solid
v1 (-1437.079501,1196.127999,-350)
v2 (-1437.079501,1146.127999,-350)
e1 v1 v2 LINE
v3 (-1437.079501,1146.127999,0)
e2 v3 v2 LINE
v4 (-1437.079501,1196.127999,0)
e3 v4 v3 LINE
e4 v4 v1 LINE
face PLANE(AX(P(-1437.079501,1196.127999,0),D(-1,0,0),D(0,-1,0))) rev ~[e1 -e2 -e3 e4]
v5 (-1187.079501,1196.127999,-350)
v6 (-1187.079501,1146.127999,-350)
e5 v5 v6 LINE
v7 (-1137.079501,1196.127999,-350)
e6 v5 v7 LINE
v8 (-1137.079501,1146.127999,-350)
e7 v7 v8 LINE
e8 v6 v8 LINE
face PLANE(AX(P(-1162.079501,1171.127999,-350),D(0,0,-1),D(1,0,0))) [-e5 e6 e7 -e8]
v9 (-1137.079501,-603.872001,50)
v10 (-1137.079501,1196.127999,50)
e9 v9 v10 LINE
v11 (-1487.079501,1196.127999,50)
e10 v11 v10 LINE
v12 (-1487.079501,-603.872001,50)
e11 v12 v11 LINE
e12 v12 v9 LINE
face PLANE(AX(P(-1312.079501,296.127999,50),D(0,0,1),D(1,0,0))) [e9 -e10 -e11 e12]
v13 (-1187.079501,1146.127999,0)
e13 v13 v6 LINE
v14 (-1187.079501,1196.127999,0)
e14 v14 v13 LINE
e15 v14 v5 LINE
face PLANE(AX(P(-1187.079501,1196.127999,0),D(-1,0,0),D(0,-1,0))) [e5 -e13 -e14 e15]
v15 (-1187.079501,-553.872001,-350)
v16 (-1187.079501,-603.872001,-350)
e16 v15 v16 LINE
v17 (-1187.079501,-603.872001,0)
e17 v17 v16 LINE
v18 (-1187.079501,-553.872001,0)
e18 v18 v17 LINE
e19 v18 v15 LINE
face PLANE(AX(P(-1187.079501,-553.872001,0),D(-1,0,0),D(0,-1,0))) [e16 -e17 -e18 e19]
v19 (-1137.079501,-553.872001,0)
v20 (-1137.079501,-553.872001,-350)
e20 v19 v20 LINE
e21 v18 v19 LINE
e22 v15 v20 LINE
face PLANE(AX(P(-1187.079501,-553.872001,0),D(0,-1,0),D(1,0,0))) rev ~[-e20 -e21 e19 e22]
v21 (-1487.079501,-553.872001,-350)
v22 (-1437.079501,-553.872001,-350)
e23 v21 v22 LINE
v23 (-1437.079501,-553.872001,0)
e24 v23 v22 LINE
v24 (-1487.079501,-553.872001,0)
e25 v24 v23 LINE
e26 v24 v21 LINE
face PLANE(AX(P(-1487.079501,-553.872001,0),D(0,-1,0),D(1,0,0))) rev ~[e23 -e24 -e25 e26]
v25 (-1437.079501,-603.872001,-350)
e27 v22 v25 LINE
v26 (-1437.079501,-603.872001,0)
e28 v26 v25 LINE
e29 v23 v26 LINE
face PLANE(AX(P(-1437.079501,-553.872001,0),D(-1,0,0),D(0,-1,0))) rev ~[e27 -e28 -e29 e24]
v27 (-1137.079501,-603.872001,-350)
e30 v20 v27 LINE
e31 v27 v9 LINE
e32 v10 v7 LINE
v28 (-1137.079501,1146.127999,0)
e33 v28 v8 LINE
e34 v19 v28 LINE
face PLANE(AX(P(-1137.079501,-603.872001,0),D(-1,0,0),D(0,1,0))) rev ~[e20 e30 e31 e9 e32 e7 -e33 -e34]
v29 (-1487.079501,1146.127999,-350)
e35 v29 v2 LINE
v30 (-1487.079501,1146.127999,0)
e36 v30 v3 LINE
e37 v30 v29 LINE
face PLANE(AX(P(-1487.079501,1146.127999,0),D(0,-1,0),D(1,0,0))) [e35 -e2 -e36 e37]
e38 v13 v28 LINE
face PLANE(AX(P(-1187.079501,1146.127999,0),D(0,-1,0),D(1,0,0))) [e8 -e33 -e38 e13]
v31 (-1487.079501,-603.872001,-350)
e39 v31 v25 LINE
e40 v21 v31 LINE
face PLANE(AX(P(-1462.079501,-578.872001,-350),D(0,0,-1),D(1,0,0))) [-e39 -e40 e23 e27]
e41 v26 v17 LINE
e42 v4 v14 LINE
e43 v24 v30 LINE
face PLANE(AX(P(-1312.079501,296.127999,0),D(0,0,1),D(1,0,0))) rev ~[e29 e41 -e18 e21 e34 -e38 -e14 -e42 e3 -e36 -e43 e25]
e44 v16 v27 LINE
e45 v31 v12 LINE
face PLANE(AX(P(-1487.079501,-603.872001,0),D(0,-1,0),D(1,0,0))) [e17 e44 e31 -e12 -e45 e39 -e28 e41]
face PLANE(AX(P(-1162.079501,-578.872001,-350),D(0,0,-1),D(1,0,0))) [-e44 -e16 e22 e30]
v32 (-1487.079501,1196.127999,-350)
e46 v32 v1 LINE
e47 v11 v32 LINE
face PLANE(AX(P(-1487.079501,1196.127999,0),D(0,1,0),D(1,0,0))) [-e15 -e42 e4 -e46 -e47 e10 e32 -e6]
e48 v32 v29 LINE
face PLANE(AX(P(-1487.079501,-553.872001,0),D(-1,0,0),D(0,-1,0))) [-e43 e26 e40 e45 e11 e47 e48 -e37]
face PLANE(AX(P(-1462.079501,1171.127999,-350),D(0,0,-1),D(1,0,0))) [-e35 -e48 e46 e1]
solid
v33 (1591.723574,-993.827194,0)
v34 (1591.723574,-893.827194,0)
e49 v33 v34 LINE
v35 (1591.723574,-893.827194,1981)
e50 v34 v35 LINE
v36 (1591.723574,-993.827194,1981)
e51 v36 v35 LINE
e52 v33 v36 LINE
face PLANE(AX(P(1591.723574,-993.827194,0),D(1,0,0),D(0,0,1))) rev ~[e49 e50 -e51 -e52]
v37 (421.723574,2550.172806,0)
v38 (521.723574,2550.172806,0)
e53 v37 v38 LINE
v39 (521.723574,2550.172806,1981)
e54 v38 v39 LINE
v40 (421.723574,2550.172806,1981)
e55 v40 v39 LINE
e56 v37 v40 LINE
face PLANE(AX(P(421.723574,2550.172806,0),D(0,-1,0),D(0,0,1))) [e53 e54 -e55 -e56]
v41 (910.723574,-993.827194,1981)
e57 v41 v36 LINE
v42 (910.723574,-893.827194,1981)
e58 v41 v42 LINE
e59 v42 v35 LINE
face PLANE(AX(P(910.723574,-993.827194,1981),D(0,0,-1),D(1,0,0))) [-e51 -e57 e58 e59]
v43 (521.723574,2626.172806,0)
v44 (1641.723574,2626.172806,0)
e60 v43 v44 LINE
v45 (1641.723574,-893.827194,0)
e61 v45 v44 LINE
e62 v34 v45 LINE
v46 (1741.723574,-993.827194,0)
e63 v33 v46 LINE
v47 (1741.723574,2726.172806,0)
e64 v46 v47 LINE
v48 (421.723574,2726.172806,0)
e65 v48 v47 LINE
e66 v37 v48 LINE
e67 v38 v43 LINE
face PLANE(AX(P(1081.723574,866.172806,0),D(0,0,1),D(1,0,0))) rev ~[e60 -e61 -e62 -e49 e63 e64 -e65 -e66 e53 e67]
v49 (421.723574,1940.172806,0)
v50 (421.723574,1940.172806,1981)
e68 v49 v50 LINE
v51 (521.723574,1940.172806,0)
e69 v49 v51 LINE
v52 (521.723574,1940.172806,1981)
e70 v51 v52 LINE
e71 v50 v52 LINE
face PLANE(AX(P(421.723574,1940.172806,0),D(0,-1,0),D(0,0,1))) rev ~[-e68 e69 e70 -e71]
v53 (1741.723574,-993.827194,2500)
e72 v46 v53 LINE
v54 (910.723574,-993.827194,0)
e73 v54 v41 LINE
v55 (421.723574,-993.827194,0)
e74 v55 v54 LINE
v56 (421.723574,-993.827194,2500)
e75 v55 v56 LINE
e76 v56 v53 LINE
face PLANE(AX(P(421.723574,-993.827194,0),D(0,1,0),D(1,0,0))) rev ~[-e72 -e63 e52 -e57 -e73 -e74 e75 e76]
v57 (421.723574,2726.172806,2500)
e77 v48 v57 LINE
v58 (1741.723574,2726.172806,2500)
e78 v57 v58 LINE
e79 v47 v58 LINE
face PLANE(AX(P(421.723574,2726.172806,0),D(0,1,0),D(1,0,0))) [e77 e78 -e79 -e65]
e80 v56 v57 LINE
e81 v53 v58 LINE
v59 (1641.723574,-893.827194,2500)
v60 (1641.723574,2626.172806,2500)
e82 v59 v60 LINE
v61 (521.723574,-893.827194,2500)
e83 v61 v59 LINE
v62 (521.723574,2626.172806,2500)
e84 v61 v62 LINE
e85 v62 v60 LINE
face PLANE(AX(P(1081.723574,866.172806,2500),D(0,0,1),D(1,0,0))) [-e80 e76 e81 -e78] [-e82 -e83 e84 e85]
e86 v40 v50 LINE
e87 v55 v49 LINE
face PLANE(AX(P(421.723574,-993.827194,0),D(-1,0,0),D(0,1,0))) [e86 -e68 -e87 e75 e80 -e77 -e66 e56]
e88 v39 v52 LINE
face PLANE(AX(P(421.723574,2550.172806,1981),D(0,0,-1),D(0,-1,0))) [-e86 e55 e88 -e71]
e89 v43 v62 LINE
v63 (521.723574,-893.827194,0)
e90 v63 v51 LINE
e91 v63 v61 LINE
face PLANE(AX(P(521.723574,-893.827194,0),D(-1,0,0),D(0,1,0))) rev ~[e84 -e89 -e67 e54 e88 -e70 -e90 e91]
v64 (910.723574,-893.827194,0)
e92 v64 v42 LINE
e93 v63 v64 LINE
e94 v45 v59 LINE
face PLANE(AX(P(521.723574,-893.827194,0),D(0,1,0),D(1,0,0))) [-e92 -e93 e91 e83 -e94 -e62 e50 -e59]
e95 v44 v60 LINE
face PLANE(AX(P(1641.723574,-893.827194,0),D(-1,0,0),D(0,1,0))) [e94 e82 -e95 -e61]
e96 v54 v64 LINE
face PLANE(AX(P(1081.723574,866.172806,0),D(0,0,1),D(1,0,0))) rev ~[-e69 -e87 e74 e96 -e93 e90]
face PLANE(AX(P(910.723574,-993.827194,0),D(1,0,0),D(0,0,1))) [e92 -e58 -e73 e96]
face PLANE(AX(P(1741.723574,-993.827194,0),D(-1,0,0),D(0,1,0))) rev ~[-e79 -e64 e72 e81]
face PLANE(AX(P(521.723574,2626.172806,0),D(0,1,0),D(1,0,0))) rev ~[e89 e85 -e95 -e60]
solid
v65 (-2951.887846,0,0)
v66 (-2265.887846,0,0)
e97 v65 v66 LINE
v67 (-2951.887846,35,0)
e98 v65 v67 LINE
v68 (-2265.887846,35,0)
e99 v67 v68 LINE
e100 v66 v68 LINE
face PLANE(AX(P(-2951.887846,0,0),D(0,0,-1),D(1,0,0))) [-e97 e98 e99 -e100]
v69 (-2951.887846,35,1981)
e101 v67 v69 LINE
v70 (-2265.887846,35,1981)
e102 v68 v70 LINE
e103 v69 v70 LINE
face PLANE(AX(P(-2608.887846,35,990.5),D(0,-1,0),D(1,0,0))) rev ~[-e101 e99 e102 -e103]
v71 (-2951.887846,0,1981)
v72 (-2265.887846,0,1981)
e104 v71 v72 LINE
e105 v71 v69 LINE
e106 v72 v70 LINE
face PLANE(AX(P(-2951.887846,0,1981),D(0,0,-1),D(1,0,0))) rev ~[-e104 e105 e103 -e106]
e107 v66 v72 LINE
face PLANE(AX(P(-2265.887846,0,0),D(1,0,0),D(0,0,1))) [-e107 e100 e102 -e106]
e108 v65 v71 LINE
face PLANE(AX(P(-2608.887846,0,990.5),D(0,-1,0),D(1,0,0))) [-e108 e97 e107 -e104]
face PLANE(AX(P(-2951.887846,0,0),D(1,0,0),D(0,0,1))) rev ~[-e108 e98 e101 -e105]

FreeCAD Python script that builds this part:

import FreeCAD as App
import Part
import Sketcher
from FreeCAD import Vector
Q = App.Units.Quantity

doc = App.newDocument("Part")
body = doc.addObject("PartDesign::Body", "Body")

sketch1 = doc.addObject("Sketcher::SketchObject", "Sketch")
body.addObject(sketch1)
sketch1.AttachmentSupport = (doc.XY_Plane, [""])
sketch1.MapMode = "FlatFace"
sketch1.addGeometry(Part.LineSegment(Vector(422, 2726, 0), Vector(422, -994, 0)), False)
sketch1.addGeometry(Part.LineSegment(Vector(422, -994, 0), Vector(1742, -994, 0)), False)
sketch1.addGeometry(Part.LineSegment(Vector(1742, -994, 0), Vector(1742, 2726, 0)), False)
sketch1.addGeometry(Part.LineSegment(Vector(1742, 2726, 0), Vector(422, 2726, 0)), False)
sketch1.addGeometry(Part.LineSegment(Vector(1642, -894, 0), Vector(522, -894, 0)), False)
sketch1.addGeometry(Part.LineSegment(Vector(522, -894, 0), Vector(522, 2626, 0)), False)
sketch1.addGeometry(Part.LineSegment(Vector(522, 2626, 0), Vector(1642, 2626, 0)), False)
sketch1.addGeometry(Part.LineSegment(Vector(1642, 2626, 0), Vector(1642, -894, 0)), False)
sketch1.addConstraint(Sketcher.Constraint("Coincident", 0, 2, 1, 1))
sketch1.addConstraint(Sketcher.Constraint("Coincident", 1, 2, 2, 1))
sketch1.addConstraint(Sketcher.Constraint("Coincident", 2, 2, 3, 1))
sketch1.addConstraint(Sketcher.Constraint("Coincident", 3, 2, 0, 1))
sketch1.addConstraint(Sketcher.Constraint("Coincident", 4, 2, 5, 1))
sketch1.addConstraint(Sketcher.Constraint("Coincident", 5, 2, 6, 1))
sketch1.addConstraint(Sketcher.Constraint("Coincident", 6, 2, 7, 1))
sketch1.addConstraint(Sketcher.Constraint("Coincident", 7, 2, 4, 1))
sketch1.addConstraint(Sketcher.Constraint("Vertical", 0))
sketch1.addConstraint(Sketcher.Constraint("Horizontal", 1))
sketch1.addConstraint(Sketcher.Constraint("Vertical", 2))
sketch1.addConstraint(Sketcher.Constraint("Horizontal", 3))
sketch1.addConstraint(Sketcher.Constraint("Horizontal", 4))
sketch1.addConstraint(Sketcher.Constraint("Vertical", 5))
sketch1.addConstraint(Sketcher.Constraint("Horizontal", 6))
sketch1.addConstraint(Sketcher.Constraint("Vertical", 7))
sketch1.addConstraint(Sketcher.Constraint("DistanceX", 1, 1, 1, 2, Q("1320 mm")))
sketch1.addConstraint(Sketcher.Constraint("DistanceX", 4, 2, 4, 1, Q("1120 mm")))
sketch1.addConstraint(Sketcher.Constraint("DistanceY", 0, 2, 0, 1, Q("3720 mm")))
sketch1.addConstraint(Sketcher.Constraint("DistanceY", 5, 1, 5, 2, Q("3520 mm")))
sketch1.addConstraint(Sketcher.Constraint("DistanceX", 0, 2, 4, 2, Q("100 mm")))
sketch1.addConstraint(Sketcher.Constraint("DistanceY", 0, 2, 4, 2, Q("100 mm")))
sketch1.addConstraint(Sketcher.Constraint("DistanceX", -1, 1, 0, 2, Q("421.723574 mm")))
sketch1.addConstraint(Sketcher.Constraint("DistanceY", 0, 2, -1, 1, Q("993.827194 mm")))
pad1 = doc.addObject("PartDesign::Pad", "Pad")
body.addObject(pad1)
pad1.Profile = sketch1
pad1.Length = 2500

sketch2 = doc.addObject("Sketcher::SketchObject", "Sketch001")
body.addObject(sketch2)
sketch2.AttachmentSupport = (doc.XZ_Plane, [""])
sketch2.MapMode = "FlatFace"
sketch2.AttachmentOffset = App.Placement(Vector(0, 0, 993.827194), App.Rotation())
sketch2.addGeometry(Part.LineSegment(Vector(911, 1981, 0), Vector(911, 0, 0)), False)
sketch2.addGeometry(Part.LineSegment(Vector(911, 0, 0), Vector(1592, 0, 0)), False)
sketch2.addGeometry(Part.LineSegment(Vector(1592, 0, 0), Vector(1592, 1981, 0)), False)
sketch2.addGeometry(Part.LineSegment(Vector(1592, 1981, 0), Vector(911, 1981, 0)), False)
sketch2.addConstraint(Sketcher.Constraint("Coincident", 0, 2, 1, 1))
sketch2.addConstraint(Sketcher.Constraint("Coincident", 1, 2, 2, 1))
sketch2.addConstraint(Sketcher.Constraint("Coincident", 2, 2, 3, 1))
sketch2.addConstraint(Sketcher.Constraint("Coincident", 3, 2, 0, 1))
sketch2.addConstraint(Sketcher.Constraint("Vertical", 0))
sketch2.addConstraint(Sketcher.Constraint("Horizontal", 1))
sketch2.addConstraint(Sketcher.Constraint("Vertical", 2))
sketch2.addConstraint(Sketcher.Constraint("Horizontal", 3))
sketch2.addConstraint(Sketcher.Constraint("PointOnObject", 0, 2, -1))
sketch2.addConstraint(Sketcher.Constraint("DistanceX", 1, 1, 1, 2, Q("681 mm")))
sketch2.addConstraint(Sketcher.Constraint("DistanceY", 0, 2, 0, 1, Q("1981 mm")))
sketch2.addConstraint(Sketcher.Constraint("DistanceX", -1, 1, 0, 2, Q("910.723574 mm")))
pocket1 = doc.addObject("PartDesign::Pocket", "Pocket")
body.addObject(pocket1)
pocket1.Profile = sketch2
pocket1.Length = 100

sketch3 = doc.addObject("Sketcher::SketchObject", "Sketch002")
body.addObject(sketch3)
sketch3.AttachmentSupport = (doc.YZ_Plane, [""])
sketch3.MapMode = "FlatFace"
sketch3.AttachmentOffset = App.Placement(Vector(0, 0, 421.723574), App.Rotation())
sketch3.addGeometry(Part.LineSegment(Vector(2550, 1981, 0), Vector(2550, 0, 0)), False)
sketch3.addGeometry(Part.LineSegment(Vector(2550, 0, 0), Vector(1940, 0, 0)), False)
sketch3.addGeometry(Part.LineSegment(Vector(1940, 0, 0), Vector(1940, 1981, 0)), False)
sketch3.addGeometry(Part.LineSegment(Vector(1940, 1981, 0), Vector(2550, 1981, 0)), False)
sketch3.addConstraint(Sketcher.Constraint("Coincident", 0, 2, 1, 1))
sketch3.addConstraint(Sketcher.Constraint("Coincident", 1, 2, 2, 1))
sketch3.addConstraint(Sketcher.Constraint("Coincident", 2, 2, 3, 1))
sketch3.addConstraint(Sketcher.Constraint("Coincident", 3, 2, 0, 1))
sketch3.addConstraint(Sketcher.Constraint("Vertical", 0))
sketch3.addConstraint(Sketcher.Constraint("Horizontal", 1))
sketch3.addConstraint(Sketcher.Constraint("Vertical", 2))
sketch3.addConstraint(Sketcher.Constraint("Horizontal", 3))
sketch3.addConstraint(Sketcher.Constraint("PointOnObject", 0, 2, -1))
sketch3.addConstraint(Sketcher.Constraint("DistanceX", 1, 2, 1, 1, Q("610 mm")))
sketch3.addConstraint(Sketcher.Constraint("DistanceY", 0, 2, 0, 1, Q("1981 mm")))
sketch3.addConstraint(Sketcher.Constraint("DistanceX", -1, 1, 0, 2, Q("2550.172806 mm")))
pocket2 = doc.addObject("PartDesign::Pocket", "Pocket001")
body.addObject(pocket2)
pocket2.Profile = sketch3
pocket2.Length = 100
pocket2.Reversed = True
body2 = doc.addObject("PartDesign::Body", "Body001")

sketch4 = doc.addObject("Sketcher::SketchObject", "Sketch003")
body2.addObject(sketch4)
sketch4.AttachmentSupport = (doc.getObject("XY_Plane001"), [""])
sketch4.MapMode = "FlatFace"
sketch4.addGeometry(Part.LineSegment(Vector(-1487, 1196, 0), Vector(-1487, -604, 0)), False)
sketch4.addGeometry(Part.LineSegment(Vector(-1487, -604, 0), Vector(-1137, -604, 0)), False)
sketch4.addGeometry(Part.LineSegment(Vector(-1137, -604, 0), Vector(-1137, 1196, 0)), False)
sketch4.addGeometry(Part.LineSegment(Vector(-1137, 1196, 0), Vector(-1487, 1196, 0)), False)
sketch4.addConstraint(Sketcher.Constraint("Coincident", 0, 2, 1, 1))
sketch4.addConstraint(Sketcher.Constraint("Coincident", 1, 2, 2, 1))
sketch4.addConstraint(Sketcher.Constraint("Coincident", 2, 2, 3, 1))
sketch4.addConstraint(Sketcher.Constraint("Coincident", 3, 2, 0, 1))
sketch4.addConstraint(Sketcher.Constraint("Vertical", 0))
sketch4.addConstraint(Sketcher.Constraint("Horizontal", 1))
sketch4.addConstraint(Sketcher.Constraint("Vertical", 2))
sketch4.addConstraint(Sketcher.Constraint("Horizontal", 3))
sketch4.addConstraint(Sketcher.Constraint("DistanceX", 1, 1, 1, 2, Q("350 mm")))
sketch4.addConstraint(Sketcher.Constraint("DistanceY", 0, 2, 0, 1, Q("1800 mm")))
sketch4.addConstraint(Sketcher.Constraint("DistanceY", 0, 2, -1, 1, Q("603.872001 mm")))
sketch4.addConstraint(Sketcher.Constraint("DistanceX", 0, 2, -1, 1, Q("1487.079501 mm")))
pad2 = doc.addObject("PartDesign::Pad", "Pad001")
body2.addObject(pad2)
pad2.Profile = sketch4
pad2.Length = 50

sketch5 = doc.addObject("Sketcher::SketchObject", "Sketch004")
body2.addObject(sketch5)
sketch5.AttachmentSupport = (doc.getObject("XY_Plane001"), [""])
sketch5.MapMode = "FlatFace"
sketch5.addGeometry(Part.LineSegment(Vector(-1487, -604, 0), Vector(-1487, -554, 0)), False)
sketch5.addGeometry(Part.LineSegment(Vector(-1487, -554, 0), Vector(-1437, -554, 0)), False)
sketch5.addGeometry(Part.LineSegment(Vector(-1437, -554, 0), Vector(-1437, -604, 0)), False)
sketch5.addGeometry(Part.LineSegment(Vector(-1437, -604, 0), Vector(-1487, -604, 0)), False)
sketch5.addGeometry(Part.LineSegment(Vector(-1187, -604, 0), Vector(-1187, -554, 0)), False)
sketch5.addGeometry(Part.LineSegment(Vector(-1187, -554, 0), Vector(-1137, -554, 0)), False)
sketch5.addGeometry(Part.LineSegment(Vector(-1137, -554, 0), Vector(-1137, -604, 0)), False)
sketch5.addGeometry(Part.LineSegment(Vector(-1137, -604, 0), Vector(-1187, -604, 0)), False)
sketch5.addGeometry(Part.LineSegment(Vector(-1187, 1146, 0), Vector(-1187, 1196, 0)), False)
sketch5.addGeometry(Part.LineSegment(Vector(-1187, 1196, 0), Vector(-1137, 1196, 0)), False)
sketch5.addGeometry(Part.LineSegment(Vector(-1137, 1196, 0), Vector(-1137, 1146, 0)), False)
sketch5.addGeometry(Part.LineSegment(Vector(-1137, 1146, 0), Vector(-1187, 1146, 0)), False)
sketch5.addGeometry(Part.LineSegment(Vector(-1487, 1146, 0), Vector(-1487, 1196, 0)), False)
sketch5.addGeometry(Part.LineSegment(Vector(-1487, 1196, 0), Vector(-1437, 1196, 0)), False)
sketch5.addGeometry(Part.LineSegment(Vector(-1437, 1196, 0), Vector(-1437, 1146, 0)), False)
sketch5.addGeometry(Part.LineSegment(Vector(-1437, 1146, 0), Vector(-1487, 1146, 0)), False)
sketch5.addConstraint(Sketcher.Constraint("Coincident", 0, 2, 1, 1))
sketch5.addConstraint(Sketcher.Constraint("Coincident", 1, 2, 2, 1))
sketch5.addConstraint(Sketcher.Constraint("Coincident", 2, 2, 3, 1))
sketch5.addConstraint(Sketcher.Constraint("Coincident", 3, 2, 0, 1))
sketch5.addConstraint(Sketcher.Constraint("Coincident", 4, 2, 5, 1))
sketch5.addConstraint(Sketcher.Constraint("Coincident", 5, 2, 6, 1))
sketch5.addConstraint(Sketcher.Constraint("Coincident", 6, 2, 7, 1))
sketch5.addConstraint(Sketcher.Constraint("Coincident", 7, 2, 4, 1))
sketch5.addConstraint(Sketcher.Constraint("Coincident", 8, 2, 9, 1))
sketch5.addConstraint(Sketcher.Constraint("Coincident", 9, 2, 10, 1))
sketch5.addConstraint(Sketcher.Constraint("Coincident", 10, 2, 11, 1))
sketch5.addConstraint(Sketcher.Constraint("Coincident", 11, 2, 8, 1))
sketch5.addConstraint(Sketcher.Constraint("Coincident", 12, 2, 13, 1))
sketch5.addConstraint(Sketcher.Constraint("Coincident", 13, 2, 14, 1))
sketch5.addConstraint(Sketcher.Constraint("Coincident", 14, 2, 15, 1))
sketch5.addConstraint(Sketcher.Constraint("Coincident", 15, 2, 12, 1))
sketch5.addConstraint(Sketcher.Constraint("Vertical", 0))
sketch5.addConstraint(Sketcher.Constraint("Horizontal", 1))
sketch5.addConstraint(Sketcher.Constraint("Vertical", 2))
sketch5.addConstraint(Sketcher.Constraint("Horizontal", 3))
sketch5.addConstraint(Sketcher.Constraint("Vertical", 4))
sketch5.addConstraint(Sketcher.Constraint("Horizontal", 5))
sketch5.addConstraint(Sketcher.Constraint("Vertical", 6))
sketch5.addConstraint(Sketcher.Constraint("Horizontal", 7))
sketch5.addConstraint(Sketcher.Constraint("Vertical", 8))
sketch5.addConstraint(Sketcher.Constraint("Horizontal", 9))
sketch5.addConstraint(Sketcher.Constraint("Vertical", 10))
sketch5.addConstraint(Sketcher.Constraint("Horizontal", 11))
sketch5.addConstraint(Sketcher.Constraint("Vertical", 12))
sketch5.addConstraint(Sketcher.Constraint("Horizontal", 13))
sketch5.addConstraint(Sketcher.Constraint("Vertical", 14))
sketch5.addConstraint(Sketcher.Constraint("Horizontal", 15))
sketch5.addConstraint(Sketcher.Constraint("Horizontal", 1, 2, 4, 2))
sketch5.addConstraint(Sketcher.Constraint("Horizontal", 3, 2, 6, 2))
sketch5.addConstraint(Sketcher.Constraint("Horizontal", 9, 2, 12, 2))
sketch5.addConstraint(Sketcher.Constraint("Horizontal", 11, 2, 14, 2))
sketch5.addConstraint(Sketcher.Constraint("Vertical", 7, 2, 8, 2))
sketch5.addConstraint(Sketcher.Constraint("Vertical", 6, 2, 9, 2))
sketch5.addConstraint(Sketcher.Constraint("Vertical", 3, 2, 12, 2))
sketch5.addConstraint(Sketcher.Constraint("Vertical", 2, 2, 13, 2))
sketch5.addConstraint(Sketcher.Constraint("Equal", 3, 5))
sketch5.addConstraint(Sketcher.Constraint("Equal", 15, 0))
sketch5.addConstraint(Sketcher.Constraint("Equal", 6, 8))
sketch5.addConstraint(Sketcher.Constraint("DistanceX", 1, 1, 1, 2, Q("50 mm")))
sketch5.addConstraint(Sketcher.Constraint("DistanceX", 1, 2, 4, 2, Q("250 mm")))
sketch5.addConstraint(Sketcher.Constraint("DistanceY", 4, 2, 8, 2, Q("1750 mm")))
sketch5.addConstraint(Sketcher.Constraint("DistanceY", 0, 2, -1, 1, Q("553.872001 mm")))
sketch5.addConstraint(Sketcher.Constraint("DistanceX", 0, 2, -1, 1, Q("1487.079501 mm")))
pad3 = doc.addObject("PartDesign::Pad", "Pad002")
body2.addObject(pad3)
pad3.Profile = sketch5
pad3.Length = 350
pad3.Reversed = True
body3 = doc.addObject("PartDesign::Body", "Body002")

sketch6 = doc.addObject("Sketcher::SketchObject", "Sketch005")
body3.addObject(sketch6)
sketch6.AttachmentSupport = (doc.getObject("XZ_Plane002"), [""])
sketch6.MapMode = "FlatFace"
sketch6.addGeometry(Part.LineSegment(Vector(-2952, 1981, 0), Vector(-2952, 0, 0)), False)
sketch6.addGeometry(Part.LineSegment(Vector(-2952, 0, 0), Vector(-2266, 0, 0)), False)
sketch6.addGeometry(Part.LineSegment(Vector(-2266, 0, 0), Vector(-2266, 1981, 0)), False)
sketch6.addGeometry(Part.LineSegment(Vector(-2266, 1981, 0), Vector(-2952, 1981, 0)), False)
sketch6.addConstraint(Sketcher.Constraint("Coincident", 0, 2, 1, 1))
sketch6.addConstraint(Sketcher.Constraint("Coincident", 1, 2, 2, 1))
sketch6.addConstraint(Sketcher.Constraint("Coincident", 2, 2, 3, 1))
sketch6.addConstraint(Sketcher.Constraint("Coincident", 3, 2, 0, 1))
sketch6.addConstraint(Sketcher.Constraint("Vertical", 0))
sketch6.addConstraint(Sketcher.Constraint("Horizontal", 1))
sketch6.addConstraint(Sketcher.Constraint("Vertical", 2))
sketch6.addConstraint(Sketcher.Constraint("Horizontal", 3))
sketch6.addConstraint(Sketcher.Constraint("PointOnObject", 0, 2, -1))
sketch6.addConstraint(Sketcher.Constraint("DistanceX", 1, 1, 1, 2, Q("686 mm")))
sketch6.addConstraint(Sketcher.Constraint("DistanceY", 0, 2, 0, 1, Q("1981 mm")))
sketch6.addConstraint(Sketcher.Constraint("DistanceX", 0, 2, -1, 1, Q("2951.887846 mm")))
pad4 = doc.addObject("PartDesign::Pad", "Pad003")
body3.addObject(pad4)
pad4.Profile = sketch6
pad4.Length = 35
pad4.Reversed = True

doc.recompute()
